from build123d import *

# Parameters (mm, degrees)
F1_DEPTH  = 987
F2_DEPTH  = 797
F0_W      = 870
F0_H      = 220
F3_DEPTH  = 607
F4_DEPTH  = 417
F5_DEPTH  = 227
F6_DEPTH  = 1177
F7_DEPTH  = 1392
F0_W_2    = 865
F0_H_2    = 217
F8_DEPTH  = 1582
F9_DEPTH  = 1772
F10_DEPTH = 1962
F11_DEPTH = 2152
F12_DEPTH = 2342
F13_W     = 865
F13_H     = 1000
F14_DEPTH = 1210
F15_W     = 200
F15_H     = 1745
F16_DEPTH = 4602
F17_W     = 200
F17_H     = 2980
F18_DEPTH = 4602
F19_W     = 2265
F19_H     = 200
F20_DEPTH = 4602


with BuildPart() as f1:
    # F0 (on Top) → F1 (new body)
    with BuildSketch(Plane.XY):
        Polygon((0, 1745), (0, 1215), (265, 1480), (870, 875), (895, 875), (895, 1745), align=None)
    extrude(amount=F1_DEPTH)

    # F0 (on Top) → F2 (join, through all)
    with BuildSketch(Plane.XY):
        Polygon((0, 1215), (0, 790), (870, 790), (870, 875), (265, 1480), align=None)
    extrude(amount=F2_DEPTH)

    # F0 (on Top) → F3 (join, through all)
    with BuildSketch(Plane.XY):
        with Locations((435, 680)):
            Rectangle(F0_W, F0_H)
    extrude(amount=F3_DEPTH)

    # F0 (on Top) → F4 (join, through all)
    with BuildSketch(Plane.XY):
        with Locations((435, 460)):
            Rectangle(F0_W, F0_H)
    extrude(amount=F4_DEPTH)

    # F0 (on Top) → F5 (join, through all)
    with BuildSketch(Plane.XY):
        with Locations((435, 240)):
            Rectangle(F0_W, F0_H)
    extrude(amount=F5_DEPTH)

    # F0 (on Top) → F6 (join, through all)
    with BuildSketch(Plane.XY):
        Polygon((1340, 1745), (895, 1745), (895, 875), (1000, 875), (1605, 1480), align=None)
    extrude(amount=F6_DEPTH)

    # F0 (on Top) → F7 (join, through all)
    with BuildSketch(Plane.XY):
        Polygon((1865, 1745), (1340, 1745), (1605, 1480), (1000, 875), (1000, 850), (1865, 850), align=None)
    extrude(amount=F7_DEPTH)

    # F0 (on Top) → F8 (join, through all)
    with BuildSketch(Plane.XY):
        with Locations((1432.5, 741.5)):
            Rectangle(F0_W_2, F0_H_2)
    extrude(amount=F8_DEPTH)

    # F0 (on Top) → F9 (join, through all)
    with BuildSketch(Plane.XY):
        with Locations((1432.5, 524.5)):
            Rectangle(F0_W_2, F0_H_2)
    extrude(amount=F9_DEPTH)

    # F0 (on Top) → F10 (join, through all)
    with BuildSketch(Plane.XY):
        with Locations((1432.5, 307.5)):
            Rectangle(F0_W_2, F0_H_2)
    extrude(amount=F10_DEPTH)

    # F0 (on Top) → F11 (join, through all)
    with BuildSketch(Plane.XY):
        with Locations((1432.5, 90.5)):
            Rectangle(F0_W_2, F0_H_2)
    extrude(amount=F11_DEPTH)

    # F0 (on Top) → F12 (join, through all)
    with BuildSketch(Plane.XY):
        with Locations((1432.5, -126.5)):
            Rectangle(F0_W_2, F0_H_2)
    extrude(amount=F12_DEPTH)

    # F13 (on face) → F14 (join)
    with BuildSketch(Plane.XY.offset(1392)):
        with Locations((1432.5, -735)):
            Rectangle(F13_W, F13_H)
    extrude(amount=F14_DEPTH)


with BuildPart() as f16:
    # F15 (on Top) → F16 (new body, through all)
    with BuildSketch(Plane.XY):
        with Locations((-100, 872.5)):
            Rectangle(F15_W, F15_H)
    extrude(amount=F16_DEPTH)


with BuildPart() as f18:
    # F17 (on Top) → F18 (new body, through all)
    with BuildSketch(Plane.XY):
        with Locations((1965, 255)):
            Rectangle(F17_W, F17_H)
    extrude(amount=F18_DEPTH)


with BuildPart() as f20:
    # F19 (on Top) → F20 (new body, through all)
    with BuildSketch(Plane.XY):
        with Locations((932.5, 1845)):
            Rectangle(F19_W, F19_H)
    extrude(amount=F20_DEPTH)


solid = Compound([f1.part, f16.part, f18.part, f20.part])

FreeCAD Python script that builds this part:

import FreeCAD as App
import Part
import Sketcher
Q = App.Units.Quantity


def add_polygon(sketch, points):
    """Adds a closed chain of lines whose ends are joined by coincident constraints."""
    first, n = sketch.GeometryCount, len(points)
    for a, b in zip(points, points[1:] + points[:1]):
        sketch.addGeometry(Part.LineSegment(App.Vector(*a, 0), App.Vector(*b, 0)), False)
    for i in range(n):
        sketch.addConstraint(Sketcher.Constraint("Coincident", first + i, 2, first + (i + 1) % n, 1))

doc = App.newDocument("Part")
params = doc.addObject("Spreadsheet::Sheet", "Params")
for row, (alias, value) in enumerate([
    ("sketch1_width", "25 mm"),
    ("sketch1_width2", "895 mm"),
    ("sketch1_height", "530 mm"),
    ("sketch1_height2", "870 mm"),
    ("pad1_length", "987 mm"),
    ("sketch2_width", "870 mm"),
    ("sketch2_height", "425 mm"),
    ("sketch2_height2", "85 mm"),
    ("pad2_length", "797 mm"),
    ("sketch3_width", "870 mm"),
    ("sketch3_height", "220 mm"),
    ("pad3_length", "607 mm"),
    ("sketch4_width", "870 mm"),
    ("sketch4_height", "220 mm"),
    ("pad4_length", "417 mm"),
    ("sketch5_width", "870 mm"),
    ("sketch5_height", "220 mm"),
    ("pad5_length", "227 mm"),
    ("sketch6_width", "445 mm"),
    ("sketch6_width2", "105 mm"),
    ("sketch6_height", "870 mm"),
    ("pad6_length", "1177 mm"),
    ("sketch7_width", "525 mm"),
    ("sketch7_width2", "865 mm"),
    ("sketch7_height", "25 mm"),
    ("sketch7_height2", "895 mm"),
    ("pad7_length", "1392 mm"),
    ("sketch8_width", "865 mm"),
    ("sketch8_height", "217 mm"),
    ("pad8_length", "1582 mm"),
    ("sketch9_width", "865 mm"),
    ("sketch9_height", "217 mm"),
    ("pad9_length", "1772 mm"),
    ("sketch10_width", "865 mm"),
    ("sketch10_height", "217 mm"),
    ("pad10_length", "1962 mm"),
    ("sketch11_width", "865 mm"),
    ("sketch11_height", "217 mm"),
    ("pad11_length", "2152 mm"),
    ("sketch12_width", "865 mm"),
    ("sketch12_height", "217 mm"),
    ("pad12_length", "2342 mm"),
    ("sketch13_width", "865 mm"),
    ("sketch13_height", "1000 mm"),
    ("pad13_length", "1210 mm"),
    ("sketch14_width", "200 mm"),
    ("sketch14_height", "1745 mm"),
    ("pad14_length", "4602 mm"),
    ("sketch15_width", "200 mm"),
    ("sketch15_height", "2980 mm"),
    ("pad15_length", "4602 mm"),
    ("sketch16_width", "2265 mm"),
    ("sketch16_height", "200 mm"),
    ("pad16_length", "4602 mm"),
], start=1):
    params.set(f"A{row}", alias)
    params.set(f"B{row}", "=" + value)
    params.setAlias(f"B{row}", alias)

body = doc.addObject("PartDesign::Body", "Body")

sketch1 = body.newObject("Sketcher::SketchObject", "Sketch")
sketch1.AttachmentSupport = (doc.getObject("XY_Plane"), [""])
sketch1.MapMode = "FlatFace"
add_polygon(sketch1, [(0, 1745), (0, 1215), (265, 1480), (870, 875), (895, 875), (895, 1745)])
sketch1.addConstraint(Sketcher.Constraint("Vertical", 0))
sketch1.addConstraint(Sketcher.Constraint("Horizontal", 3))
sketch1.addConstraint(Sketcher.Constraint("Vertical", 4))
sketch1.addConstraint(Sketcher.Constraint("Horizontal", 5))
sketch1.addConstraint(Sketcher.Constraint("PointOnObject", 0, 2, -2))
sketch1.addConstraint(Sketcher.Constraint("Perpendicular", 1, 2))
sketch1.addConstraint(Sketcher.Constraint("DistanceX", 3, 1, 3, 2, Q("25 mm")))
sketch1.addConstraint(Sketcher.Constraint("DistanceX", 5, 2, 5, 1, Q("895 mm")))
sketch1.addConstraint(Sketcher.Constraint("DistanceY", 0, 2, 0, 1, Q("530 mm")))
sketch1.addConstraint(Sketcher.Constraint("DistanceY", 4, 1, 4, 2, Q("870 mm")))
sketch1.addConstraint(Sketcher.Constraint("Angle", 1, Q("45 deg")))
sketch1.addConstraint(Sketcher.Constraint("DistanceY", -1, 1, 0, 2, Q("1215 mm")))
sketch1.setExpression("Constraints[12]", "Params.sketch1_width")
sketch1.setExpression("Constraints[13]", "Params.sketch1_width2")
sketch1.setExpression("Constraints[14]", "Params.sketch1_height")
sketch1.setExpression("Constraints[15]", "Params.sketch1_height2")
pad1 = body.newObject("PartDesign::Pad", "Pad")
pad1.Profile = sketch1
pad1.setExpression("Length", "Params.pad1_length")

sketch2 = body.newObject("Sketcher::SketchObject", "Sketch001")
sketch2.AttachmentSupport = (doc.getObject("XY_Plane"), [""])
sketch2.MapMode = "FlatFace"
add_polygon(sketch2, [(0, 1215), (0, 790), (870, 790), (870, 875), (265, 1480)])
sketch2.addConstraint(Sketcher.Constraint("Vertical", 0))
sketch2.addConstraint(Sketcher.Constraint("Horizontal", 1))
sketch2.addConstraint(Sketcher.Constraint("Vertical", 2))
sketch2.addConstraint(Sketcher.Constraint("PointOnObject", 0, 2, -2))
sketch2.addConstraint(Sketcher.Constraint("Perpendicular", 3, 4))
sketch2.addConstraint(Sketcher.Constraint("DistanceX", 1, 1, 1, 2, Q("870 mm")))
sketch2.addConstraint(Sketcher.Constraint("DistanceY", 0, 2, 0, 1, Q("425 mm")))
sketch2.addConstraint(Sketcher.Constraint("DistanceY", 2, 1, 2, 2, Q("85 mm")))
sketch2.addConstraint(Sketcher.Constraint("Angle", 3, Q("135 deg")))
sketch2.addConstraint(Sketcher.Constraint("DistanceY", -1, 1, 0, 2, Q("790 mm")))
sketch2.setExpression("Constraints[10]", "Params.sketch2_width")
sketch2.setExpression("Constraints[11]", "Params.sketch2_height")
sketch2.setExpression("Constraints[12]", "Params.sketch2_height2")
pad2 = body.newObject("PartDesign::Pad", "Pad001")
pad2.Profile = sketch2
pad2.setExpression("Length", "Params.pad2_length")

sketch3 = body.newObject("Sketcher::SketchObject", "Sketch002")
sketch3.AttachmentSupport = (doc.getObject("XY_Plane"), [""])
sketch3.MapMode = "FlatFace"
add_polygon(sketch3, [(0, 790), (0, 570), (870, 570), (870, 790)])
sketch3.addConstraint(Sketcher.Constraint("Vertical", 0))
sketch3.addConstraint(Sketcher.Constraint("Horizontal", 1))
sketch3.addConstraint(Sketcher.Constraint("Vertical", 2))
sketch3.addConstraint(Sketcher.Constraint("Horizontal", 3))
sketch3.addConstraint(Sketcher.Constraint("PointOnObject", 0, 2, -2))
sketch3.addConstraint(Sketcher.Constraint("DistanceX", 1, 1, 1, 2, Q("870 mm")))
sketch3.addConstraint(Sketcher.Constraint("DistanceY", 0, 2, 0, 1, Q("220 mm")))
sketch3.addConstraint(Sketcher.Constraint("DistanceY", -1, 1, 0, 2, Q("570 mm")))
sketch3.setExpression("Constraints[9]", "Params.sketch3_width")
sketch3.setExpression("Constraints[10]", "Params.sketch3_height")
pad3 = body.newObject("PartDesign::Pad", "Pad002")
pad3.Profile = sketch3
pad3.setExpression("Length", "Params.pad3_length")

sketch4 = body.newObject("Sketcher::SketchObject", "Sketch003")
sketch4.AttachmentSupport = (doc.getObject("XY_Plane"), [""])
sketch4.MapMode = "FlatFace"
add_polygon(sketch4, [(0, 570), (0, 350), (870, 350), (870, 570)])
sketch4.addConstraint(Sketcher.Constraint("Vertical", 0))
sketch4.addConstraint(Sketcher.Constraint("Horizontal", 1))
sketch4.addConstraint(Sketcher.Constraint("Vertical", 2))
sketch4.addConstraint(Sketcher.Constraint("Horizontal", 3))
sketch4.addConstraint(Sketcher.Constraint("PointOnObject", 0, 2, -2))
sketch4.addConstraint(Sketcher.Constraint("DistanceX", 1, 1, 1, 2, Q("870 mm")))
sketch4.addConstraint(Sketcher.Constraint("DistanceY", 0, 2, 0, 1, Q("220 mm")))
sketch4.addConstraint(Sketcher.Constraint("DistanceY", -1, 1, 0, 2, Q("350 mm")))
sketch4.setExpression("Constraints[9]", "Params.sketch4_width")
sketch4.setExpression("Constraints[10]", "Params.sketch4_height")
pad4 = body.newObject("PartDesign::Pad", "Pad003")
pad4.Profile = sketch4
pad4.setExpression("Length", "Params.pad4_length")

sketch5 = body.newObject("Sketcher::SketchObject", "Sketch004")
sketch5.AttachmentSupport = (doc.getObject("XY_Plane"), [""])
sketch5.MapMode = "FlatFace"
add_polygon(sketch5, [(0, 350), (0, 130), (870, 130), (870, 350)])
sketch5.addConstraint(Sketcher.Constraint("Vertical", 0))
sketch5.addConstraint(Sketcher.Constraint("Horizontal", 1))
sketch5.addConstraint(Sketcher.Constraint("Vertical", 2))
sketch5.addConstraint(Sketcher.Constraint("Horizontal", 3))
sketch5.addConstraint(Sketcher.Constraint("PointOnObject", 0, 2, -2))
sketch5.addConstraint(Sketcher.Constraint("DistanceX", 1, 1, 1, 2, Q("870 mm")))
sketch5.addConstraint(Sketcher.Constraint("DistanceY", 0, 2, 0, 1, Q("220 mm")))
sketch5.addConstraint(Sketcher.Constraint("DistanceY", -1, 1, 0, 2, Q("130 mm")))
sketch5.setExpression("Constraints[9]", "Params.sketch5_width")
sketch5.setExpression("Constraints[10]", "Params.sketch5_height")
pad5 = body.newObject("PartDesign::Pad", "Pad004")
pad5.Profile = sketch5
pad5.setExpression("Length", "Params.pad5_length")

sketch6 = body.newObject("Sketcher::SketchObject", "Sketch005")
sketch6.AttachmentSupport = (doc.getObject("XY_Plane"), [""])
sketch6.MapMode = "FlatFace"
add_polygon(sketch6, [(1340, 1745), (895, 1745), (895, 875), (1000, 875), (1605, 1480)])
sketch6.addConstraint(Sketcher.Constraint("Horizontal", 0))
sketch6.addConstraint(Sketcher.Constraint("Vertical", 1))
sketch6.addConstraint(Sketcher.Constraint("Horizontal", 2))
sketch6.addConstraint(Sketcher.Constraint("Perpendicular", 3, 4))
sketch6.addConstraint(Sketcher.Constraint("DistanceX", 0, 2, 0, 1, Q("445 mm")))
sketch6.addConstraint(Sketcher.Constraint("DistanceX", 2, 1, 2, 2, Q("105 mm")))
sketch6.addConstraint(Sketcher.Constraint("DistanceY", 1, 2, 1, 1, Q("870 mm")))
sketch6.addConstraint(Sketcher.Constraint("Angle", 3, Q("45 deg")))
sketch6.addConstraint(Sketcher.Constraint("DistanceX", -1, 1, 0, 2, Q("895 mm")))
sketch6.addConstraint(Sketcher.Constraint("DistanceY", -1, 1, 0, 2, Q("1745 mm")))
sketch6.setExpression("Constraints[9]", "Params.sketch6_width")
sketch6.setExpression("Constraints[10]", "Params.sketch6_width2")
sketch6.setExpression("Constraints[11]", "Params.sketch6_height")
pad6 = body.newObject("PartDesign::Pad", "Pad005")
pad6.Profile = sketch6
pad6.setExpression("Length", "Params.pad6_length")

sketch7 = body.newObject("Sketcher::SketchObject", "Sketch006")
sketch7.AttachmentSupport = (doc.getObject("XY_Plane"), [""])
sketch7.MapMode = "FlatFace"
add_polygon(sketch7, [(1865, 1745), (1340, 1745), (1605, 1480), (1000, 875), (1000, 850), (1865, 850)])
sketch7.addConstraint(Sketcher.Constraint("Horizontal", 0))
sketch7.addConstraint(Sketcher.Constraint("Vertical", 3))
sketch7.addConstraint(Sketcher.Constraint("Horizontal", 4))
sketch7.addConstraint(Sketcher.Constraint("Vertical", 5))
sketch7.addConstraint(Sketcher.Constraint("Perpendicular", 1, 2))
sketch7.addConstraint(Sketcher.Constraint("DistanceX", 0, 2, 0, 1, Q("525 mm")))
sketch7.addConstraint(Sketcher.Constraint("DistanceX", 4, 1, 4, 2, Q("865 mm")))
sketch7.addConstraint(Sketcher.Constraint("DistanceY", 3, 2, 3, 1, Q("25 mm")))
sketch7.addConstraint(Sketcher.Constraint("DistanceY", 5, 1, 5, 2, Q("895 mm")))
sketch7.addConstraint(Sketcher.Constraint("Angle", 1, Q("-45 deg")))
sketch7.addConstraint(Sketcher.Constraint("DistanceX", -1, 1, 0, 2, Q("1340 mm")))
sketch7.addConstraint(Sketcher.Constraint("DistanceY", -1, 1, 0, 2, Q("1745 mm")))
sketch7.setExpression("Constraints[11]", "Params.sketch7_width")
sketch7.setExpression("Constraints[12]", "Params.sketch7_width2")
sketch7.setExpression("Constraints[13]", "Params.sketch7_height")
sketch7.setExpression("Constraints[14]", "Params.sketch7_height2")
pad7 = body.newObject("PartDesign::Pad", "Pad006")
pad7.Profile = sketch7
pad7.setExpression("Length", "Params.pad7_length")

sketch8 = body.newObject("Sketcher::SketchObject", "Sketch007")
sketch8.AttachmentSupport = (doc.getObject("XY_Plane"), [""])
sketch8.MapMode = "FlatFace"
add_polygon(sketch8, [(1000, 850), (1000, 633), (1865, 633), (1865, 850)])
sketch8.addConstraint(Sketcher.Constraint("Vertical", 0))
sketch8.addConstraint(Sketcher.Constraint("Horizontal", 1))
sketch8.addConstraint(Sketcher.Constraint("Vertical", 2))
sketch8.addConstraint(Sketcher.Constraint("Horizontal", 3))
sketch8.addConstraint(Sketcher.Constraint("DistanceX", 1, 1, 1, 2, Q("865 mm")))
sketch8.addConstraint(Sketcher.Constraint("DistanceY", 0, 2, 0, 1, Q("217 mm")))
sketch8.addConstraint(Sketcher.Constraint("DistanceX", -1, 1, 0, 2, Q("1000 mm")))
sketch8.addConstraint(Sketcher.Constraint("DistanceY", -1, 1, 0, 2, Q("633 mm")))
sketch8.setExpression("Constraints[8]", "Params.sketch8_width")
sketch8.setExpression("Constraints[9]", "Params.sketch8_height")
pad8 = body.newObject("PartDesign::Pad", "Pad007")
pad8.Profile = sketch8
pad8.setExpression("Length", "Params.pad8_length")

sketch9 = body.newObject("Sketcher::SketchObject", "Sketch008")
sketch9.AttachmentSupport = (doc.getObject("XY_Plane"), [""])
sketch9.MapMode = "FlatFace"
add_polygon(sketch9, [(1000, 633), (1000, 416), (1865, 416), (1865, 633)])
sketch9.addConstraint(Sketcher.Constraint("Vertical", 0))
sketch9.addConstraint(Sketcher.Constraint("Horizontal", 1))
sketch9.addConstraint(Sketcher.Constraint("Vertical", 2))
sketch9.addConstraint(Sketcher.Constraint("Horizontal", 3))
sketch9.addConstraint(Sketcher.Constraint("DistanceX", 1, 1, 1, 2, Q("865 mm")))
sketch9.addConstraint(Sketcher.Constraint("DistanceY", 0, 2, 0, 1, Q("217 mm")))
sketch9.addConstraint(Sketcher.Constraint("DistanceX", -1, 1, 0, 2, Q("1000 mm")))
sketch9.addConstraint(Sketcher.Constraint("DistanceY", -1, 1, 0, 2, Q("416 mm")))
sketch9.setExpression("Constraints[8]", "Params.sketch9_width")
sketch9.setExpression("Constraints[9]", "Params.sketch9_height")
pad9 = body.newObject("PartDesign::Pad", "Pad008")
pad9.Profile = sketch9
pad9.setExpression("Length", "Params.pad9_length")

sketch10 = body.newObject("Sketcher::SketchObject", "Sketch009")
sketch10.AttachmentSupport = (doc.getObject("XY_Plane"), [""])
sketch10.MapMode = "FlatFace"
add_polygon(sketch10, [(1000, 416), (1000, 199), (1865, 199), (1865, 416)])
sketch10.addConstraint(Sketcher.Constraint("Vertical", 0))
sketch10.addConstraint(Sketcher.Constraint("Horizontal", 1))
sketch10.addConstraint(Sketcher.Constraint("Vertical", 2))
sketch10.addConstraint(Sketcher.Constraint("Horizontal", 3))
sketch10.addConstraint(Sketcher.Constraint("DistanceX", 1, 1, 1, 2, Q("865 mm")))
sketch10.addConstraint(Sketcher.Constraint("DistanceY", 0, 2, 0, 1, Q("217 mm")))
sketch10.addConstraint(Sketcher.Constraint("DistanceX", -1, 1, 0, 2, Q("1000 mm")))
sketch10.addConstraint(Sketcher.Constraint("DistanceY", -1, 1, 0, 2, Q("199 mm")))
sketch10.setExpression("Constraints[8]", "Params.sketch10_width")
sketch10.setExpression("Constraints[9]", "Params.sketch10_height")
pad10 = body.newObject("PartDesign::Pad", "Pad009")
pad10.Profile = sketch10
pad10.setExpression("Length", "Params.pad10_length")

sketch11 = body.newObject("Sketcher::SketchObject", "Sketch010")
sketch11.AttachmentSupport = (doc.getObject("XY_Plane"), [""])
sketch11.MapMode = "FlatFace"
add_polygon(sketch11, [(1000, 199), (1000, -18), (1865, -18), (1865, 199)])
sketch11.addConstraint(Sketcher.Constraint("Vertical", 0))
sketch11.addConstraint(Sketcher.Constraint("Horizontal", 1))
sketch11.addConstraint(Sketcher.Constraint("Vertical", 2))
sketch11.addConstraint(Sketcher.Constraint("Horizontal", 3))
sketch11.addConstraint(Sketcher.Constraint("DistanceX", 1, 1, 1, 2, Q("865 mm")))
sketch11.addConstraint(Sketcher.Constraint("DistanceY", 0, 2, 0, 1, Q("217 mm")))
sketch11.addConstraint(Sketcher.Constraint("DistanceX", -1, 1, 0, 2, Q("1000 mm")))
sketch11.addConstraint(Sketcher.Constraint("DistanceY", 0, 2, -1, 1, Q("18 mm")))
sketch11.setExpression("Constraints[8]", "Params.sketch11_width")
sketch11.setExpression("Constraints[9]", "Params.sketch11_height")
pad11 = body.newObject("PartDesign::Pad", "Pad010")
pad11.Profile = sketch11
pad11.setExpression("Length", "Params.pad11_length")

sketch12 = body.newObject("Sketcher::SketchObject", "Sketch011")
sketch12.AttachmentSupport = (doc.getObject("XY_Plane"), [""])
sketch12.MapMode = "FlatFace"
add_polygon(sketch12, [(1000, -18), (1000, -235), (1865, -235), (1865, -18)])
sketch12.addConstraint(Sketcher.Constraint("Vertical", 0))
sketch12.addConstraint(Sketcher.Constraint("Horizontal", 1))
sketch12.addConstraint(Sketcher.Constraint("Vertical", 2))
sketch12.addConstraint(Sketcher.Constraint("Horizontal", 3))
sketch12.addConstraint(Sketcher.Constraint("DistanceX", 1, 1, 1, 2, Q("865 mm")))
sketch12.addConstraint(Sketcher.Constraint("DistanceY", 0, 2, 0, 1, Q("217 mm")))
sketch12.addConstraint(Sketcher.Constraint("DistanceX", -1, 1, 0, 2, Q("1000 mm")))
sketch12.addConstraint(Sketcher.Constraint("DistanceY", 0, 2, -1, 1, Q("235 mm")))
sketch12.setExpression("Constraints[8]", "Params.sketch12_width")
sketch12.setExpression("Constraints[9]", "Params.sketch12_height")
pad12 = body.newObject("PartDesign::Pad", "Pad011")
pad12.Profile = sketch12
pad12.setExpression("Length", "Params.pad12_length")

sketch13 = body.newObject("Sketcher::SketchObject", "Sketch012")
sketch13.AttachmentSupport = (doc.getObject("XY_Plane"), [""])
sketch13.MapMode = "FlatFace"
sketch13.AttachmentOffset = App.Placement(App.Vector(0, 0, 1392), App.Rotation())
add_polygon(sketch13, [(1000, -235), (1000, -1235), (1865, -1235), (1865, -235)])
sketch13.addConstraint(Sketcher.Constraint("Vertical", 0))
sketch13.addConstraint(Sketcher.Constraint("Horizontal", 1))
sketch13.addConstraint(Sketcher.Constraint("Vertical", 2))
sketch13.addConstraint(Sketcher.Constraint("Horizontal", 3))
sketch13.addConstraint(Sketcher.Constraint("DistanceX", 1, 1, 1, 2, Q("865 mm")))
sketch13.addConstraint(Sketcher.Constraint("DistanceY", 0, 2, 0, 1, Q("1000 mm")))
sketch13.addConstraint(Sketcher.Constraint("DistanceX", -1, 1, 0, 2, Q("1000 mm")))
sketch13.addConstraint(Sketcher.Constraint("DistanceY", 0, 2, -1, 1, Q("1235 mm")))
sketch13.setExpression("Constraints[8]", "Params.sketch13_width")
sketch13.setExpression("Constraints[9]", "Params.sketch13_height")
pad13 = body.newObject("PartDesign::Pad", "Pad012")
pad13.Profile = sketch13
pad13.setExpression("Length", "Params.pad13_length")
body2 = doc.addObject("PartDesign::Body", "Body001")

sketch14 = body2.newObject("Sketcher::SketchObject", "Sketch013")
sketch14.AttachmentSupport = (doc.getObject("XY_Plane001"), [""])
sketch14.MapMode = "FlatFace"
add_polygon(sketch14, [(-200, 1745), (-200, 0), (0, 0), (0, 1745)])
sketch14.addConstraint(Sketcher.Constraint("Vertical", 0))
sketch14.addConstraint(Sketcher.Constraint("Horizontal", 1))
sketch14.addConstraint(Sketcher.Constraint("Vertical", 2))
sketch14.addConstraint(Sketcher.Constraint("Horizontal", 3))
sketch14.addConstraint(Sketcher.Constraint("Coincident", 1, 2, -1, 1))
sketch14.addConstraint(Sketcher.Constraint("DistanceX", 1, 1, 1, 2, Q("200 mm")))
sketch14.addConstraint(Sketcher.Constraint("DistanceY", 0, 2, 0, 1, Q("1745 mm")))
sketch14.setExpression("Constraints[9]", "Params.sketch14_width")
sketch14.setExpression("Constraints[10]", "Params.sketch14_height")
pad14 = body2.newObject("PartDesign::Pad", "Pad013")
pad14.Profile = sketch14
pad14.setExpression("Length", "Params.pad14_length")
body3 = doc.addObject("PartDesign::Body", "Body002")

sketch15 = body3.newObject("Sketcher::SketchObject", "Sketch014")
sketch15.AttachmentSupport = (doc.getObject("XY_Plane002"), [""])
sketch15.MapMode = "FlatFace"
add_polygon(sketch15, [(1865, 1745), (1865, -1235), (2065, -1235), (2065, 1745)])
sketch15.addConstraint(Sketcher.Constraint("Vertical", 0))
sketch15.addConstraint(Sketcher.Constraint("Horizontal", 1))
sketch15.addConstraint(Sketcher.Constraint("Vertical", 2))
sketch15.addConstraint(Sketcher.Constraint("Horizontal", 3))
sketch15.addConstraint(Sketcher.Constraint("DistanceX", 1, 1, 1, 2, Q("200 mm")))
sketch15.addConstraint(Sketcher.Constraint("DistanceY", 0, 2, 0, 1, Q("2980 mm")))
sketch15.addConstraint(Sketcher.Constraint("DistanceX", -1, 1, 0, 2, Q("1865 mm")))
sketch15.addConstraint(Sketcher.Constraint("DistanceY", 0, 2, -1, 1, Q("1235 mm")))
sketch15.setExpression("Constraints[8]", "Params.sketch15_width")
sketch15.setExpression("Constraints[9]", "Params.sketch15_height")
pad15 = body3.newObject("PartDesign::Pad", "Pad014")
pad15.Profile = sketch15
pad15.setExpression("Length", "Params.pad15_length")
body4 = doc.addObject("PartDesign::Body", "Body003")

sketch16 = body4.newObject("Sketcher::SketchObject", "Sketch015")
sketch16.AttachmentSupport = (doc.getObject("XY_Plane003"), [""])
sketch16.MapMode = "FlatFace"
add_polygon(sketch16, [(-200, 1945), (-200, 1745), (2065, 1745), (2065, 1945)])
sketch16.addConstraint(Sketcher.Constraint("Vertical", 0))
sketch16.addConstraint(Sketcher.Constraint("Horizontal", 1))
sketch16.addConstraint(Sketcher.Constraint("Vertical", 2))
sketch16.addConstraint(Sketcher.Constraint("Horizontal", 3))
sketch16.addConstraint(Sketcher.Constraint("DistanceX", 1, 1, 1, 2, Q("2265 mm")))
sketch16.addConstraint(Sketcher.Constraint("DistanceY", 0, 2, 0, 1, Q("200 mm")))
sketch16.addConstraint(Sketcher.Constraint("DistanceX", 0, 2, -1, 1, Q("200 mm")))
sketch16.addConstraint(Sketcher.Constraint("DistanceY", -1, 1, 0, 2, Q("1745 mm")))
sketch16.setExpression("Constraints[8]", "Params.sketch16_width")
sketch16.setExpression("Constraints[9]", "Params.sketch16_height")
pad16 = body4.newObject("PartDesign::Pad", "Pad015")
pad16.Profile = sketch16
pad16.setExpression("Length", "Params.pad16_length")

doc.recompute()
